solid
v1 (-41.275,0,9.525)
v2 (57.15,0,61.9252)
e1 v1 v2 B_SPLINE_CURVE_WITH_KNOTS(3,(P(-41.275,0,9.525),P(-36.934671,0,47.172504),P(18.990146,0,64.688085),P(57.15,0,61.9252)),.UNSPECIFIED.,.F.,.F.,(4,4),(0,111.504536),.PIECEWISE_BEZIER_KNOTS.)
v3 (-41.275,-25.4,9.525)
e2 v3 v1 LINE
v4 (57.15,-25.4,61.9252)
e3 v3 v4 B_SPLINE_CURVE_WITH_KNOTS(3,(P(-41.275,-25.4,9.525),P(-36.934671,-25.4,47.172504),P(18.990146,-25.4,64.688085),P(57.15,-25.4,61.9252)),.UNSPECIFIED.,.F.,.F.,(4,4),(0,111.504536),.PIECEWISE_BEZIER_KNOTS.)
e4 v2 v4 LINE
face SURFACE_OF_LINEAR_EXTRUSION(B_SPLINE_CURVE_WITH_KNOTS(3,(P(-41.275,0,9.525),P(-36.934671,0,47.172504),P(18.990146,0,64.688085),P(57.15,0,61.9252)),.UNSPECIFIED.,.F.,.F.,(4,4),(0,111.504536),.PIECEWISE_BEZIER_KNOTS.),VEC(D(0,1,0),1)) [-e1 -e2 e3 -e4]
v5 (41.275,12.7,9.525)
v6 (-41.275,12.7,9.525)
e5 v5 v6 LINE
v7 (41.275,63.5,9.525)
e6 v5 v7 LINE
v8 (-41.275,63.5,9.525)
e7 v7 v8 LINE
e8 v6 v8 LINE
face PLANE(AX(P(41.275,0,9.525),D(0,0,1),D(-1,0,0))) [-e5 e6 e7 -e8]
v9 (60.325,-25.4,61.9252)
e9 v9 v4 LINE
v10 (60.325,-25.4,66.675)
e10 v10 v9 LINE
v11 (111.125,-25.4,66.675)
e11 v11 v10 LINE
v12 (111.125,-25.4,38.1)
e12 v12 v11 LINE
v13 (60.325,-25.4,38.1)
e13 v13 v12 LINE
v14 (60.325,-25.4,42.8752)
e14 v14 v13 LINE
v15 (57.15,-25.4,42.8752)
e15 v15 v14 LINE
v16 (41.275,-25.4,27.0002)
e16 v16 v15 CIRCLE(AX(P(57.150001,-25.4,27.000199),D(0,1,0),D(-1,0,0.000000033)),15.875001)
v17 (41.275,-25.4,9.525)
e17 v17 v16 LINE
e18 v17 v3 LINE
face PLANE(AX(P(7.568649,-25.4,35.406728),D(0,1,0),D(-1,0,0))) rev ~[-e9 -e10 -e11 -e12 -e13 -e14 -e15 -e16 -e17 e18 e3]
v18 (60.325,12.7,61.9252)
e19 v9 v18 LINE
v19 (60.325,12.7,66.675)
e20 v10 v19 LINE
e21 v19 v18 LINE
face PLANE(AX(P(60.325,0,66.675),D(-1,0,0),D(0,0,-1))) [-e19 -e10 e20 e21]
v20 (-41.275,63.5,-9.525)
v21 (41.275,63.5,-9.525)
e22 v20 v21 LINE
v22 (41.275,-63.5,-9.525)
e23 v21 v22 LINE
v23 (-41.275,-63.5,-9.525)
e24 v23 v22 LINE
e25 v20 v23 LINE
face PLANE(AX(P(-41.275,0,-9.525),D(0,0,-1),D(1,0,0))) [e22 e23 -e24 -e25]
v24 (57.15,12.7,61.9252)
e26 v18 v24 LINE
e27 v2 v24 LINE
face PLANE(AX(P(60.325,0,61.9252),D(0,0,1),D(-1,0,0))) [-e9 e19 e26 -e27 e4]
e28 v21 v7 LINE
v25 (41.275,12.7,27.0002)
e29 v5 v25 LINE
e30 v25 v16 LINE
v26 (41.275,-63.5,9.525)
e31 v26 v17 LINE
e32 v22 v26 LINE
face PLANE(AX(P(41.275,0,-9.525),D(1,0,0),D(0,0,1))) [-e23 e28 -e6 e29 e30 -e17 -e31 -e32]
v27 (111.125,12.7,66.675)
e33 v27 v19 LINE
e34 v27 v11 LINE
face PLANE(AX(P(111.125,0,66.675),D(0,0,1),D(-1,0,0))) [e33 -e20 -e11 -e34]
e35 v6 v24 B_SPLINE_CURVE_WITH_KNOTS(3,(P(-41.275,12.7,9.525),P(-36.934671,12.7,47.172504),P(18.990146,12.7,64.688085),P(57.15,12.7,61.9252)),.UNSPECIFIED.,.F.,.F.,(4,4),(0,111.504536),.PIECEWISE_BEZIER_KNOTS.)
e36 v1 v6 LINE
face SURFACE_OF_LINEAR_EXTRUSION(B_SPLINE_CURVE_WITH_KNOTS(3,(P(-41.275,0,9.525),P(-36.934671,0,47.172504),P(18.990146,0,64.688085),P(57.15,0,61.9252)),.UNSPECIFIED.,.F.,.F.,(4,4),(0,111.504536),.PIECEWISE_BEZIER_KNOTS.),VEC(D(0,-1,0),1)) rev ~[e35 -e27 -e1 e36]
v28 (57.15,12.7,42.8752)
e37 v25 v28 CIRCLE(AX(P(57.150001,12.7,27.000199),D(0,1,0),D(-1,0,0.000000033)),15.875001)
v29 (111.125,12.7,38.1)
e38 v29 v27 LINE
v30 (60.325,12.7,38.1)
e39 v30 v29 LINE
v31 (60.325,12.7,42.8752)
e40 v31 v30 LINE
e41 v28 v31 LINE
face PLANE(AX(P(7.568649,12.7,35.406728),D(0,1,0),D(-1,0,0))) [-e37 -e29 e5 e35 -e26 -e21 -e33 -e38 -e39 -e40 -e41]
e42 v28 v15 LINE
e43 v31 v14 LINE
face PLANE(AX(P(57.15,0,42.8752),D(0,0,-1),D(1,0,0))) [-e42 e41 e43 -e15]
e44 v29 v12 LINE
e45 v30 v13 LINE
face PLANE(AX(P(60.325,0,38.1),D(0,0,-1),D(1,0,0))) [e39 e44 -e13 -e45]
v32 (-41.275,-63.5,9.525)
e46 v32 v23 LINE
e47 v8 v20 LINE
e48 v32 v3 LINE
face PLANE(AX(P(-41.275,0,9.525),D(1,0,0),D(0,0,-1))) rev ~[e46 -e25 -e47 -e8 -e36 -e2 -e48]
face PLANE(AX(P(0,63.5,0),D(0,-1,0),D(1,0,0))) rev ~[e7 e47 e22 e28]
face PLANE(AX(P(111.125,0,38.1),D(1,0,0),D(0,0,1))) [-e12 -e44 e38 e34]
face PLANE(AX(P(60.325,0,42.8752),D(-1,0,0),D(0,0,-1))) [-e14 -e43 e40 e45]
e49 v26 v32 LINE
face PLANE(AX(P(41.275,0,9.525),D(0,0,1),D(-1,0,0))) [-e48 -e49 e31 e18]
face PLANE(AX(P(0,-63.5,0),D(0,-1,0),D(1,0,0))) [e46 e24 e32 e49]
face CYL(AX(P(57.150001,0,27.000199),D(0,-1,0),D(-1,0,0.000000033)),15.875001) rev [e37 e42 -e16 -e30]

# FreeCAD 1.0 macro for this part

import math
import FreeCAD as App
import Part
import Sketcher
Q = App.Units.Quantity

doc = App.newDocument("Part")
params = doc.addObject("Spreadsheet::Sheet", "Params")
for row, (alias, value) in enumerate([
    ("sketch1_width", "3.25 in"),
    ("sketch1_height", "0.75 in"),
    ("pad1_length", "5 in"),
    ("sketch2_width", "2 in"),
    ("sketch2_radius", "0.625 in"),
    ("sketch2_height", "0.75 in"),
    ("sketch2_height2", "1.438 in"),
    ("sketch2_height3", "1.125 in"),
    ("pad2_length", "1 in"),
    ("sketch3_width", "2 in"),
    ("sketch3_radius", "0.625 in"),
    ("sketch3_height", "0.75 in"),
    ("sketch3_height2", "1.438 in"),
    ("sketch3_height3", "1.125 in"),
    ("pad3_length", "1 in"),
], start=1):
    params.set(f"A{row}", alias)
    params.set(f"B{row}", "=" + value)
    params.setAlias(f"B{row}", alias)

body = doc.addObject("PartDesign::Body", "Body")

sketch1 = body.newObject("Sketcher::SketchObject", "Sketch")
sketch1.AttachmentSupport = (doc.getObject("XZ_Plane"), [""])
sketch1.MapMode = "FlatFace"
sketch1.addGeometry(Part.LineSegment(App.Vector(-41, 10, 0), App.Vector(-41, -10, 0)), False)
sketch1.addGeometry(Part.LineSegment(App.Vector(-41, -10, 0), App.Vector(41, -10, 0)), False)
sketch1.addGeometry(Part.LineSegment(App.Vector(41, -10, 0), App.Vector(41, 10, 0)), False)
sketch1.addGeometry(Part.LineSegment(App.Vector(41, 10, 0), App.Vector(-41, 10, 0)), False)
sketch1.addConstraint(Sketcher.Constraint("Coincident", 0, 2, 1, 1))
sketch1.addConstraint(Sketcher.Constraint("Coincident", 1, 2, 2, 1))
sketch1.addConstraint(Sketcher.Constraint("Coincident", 2, 2, 3, 1))
sketch1.addConstraint(Sketcher.Constraint("Coincident", 3, 2, 0, 1))
sketch1.addConstraint(Sketcher.Constraint("Vertical", 0))
sketch1.addConstraint(Sketcher.Constraint("Horizontal", 1))
sketch1.addConstraint(Sketcher.Constraint("Vertical", 2))
sketch1.addConstraint(Sketcher.Constraint("Horizontal", 3))
sketch1.addConstraint(Sketcher.Constraint("Symmetric", 0, 2, 2, 2, -1, 1))
sketch1.addConstraint(Sketcher.Constraint("DistanceX", 1, 1, 1, 2, Q("3.25 in")))
sketch1.addConstraint(Sketcher.Constraint("DistanceY", 0, 2, 0, 1, Q("0.75 in")))
sketch1.setExpression("Constraints[9]", "Params.sketch1_width")
sketch1.setExpression("Constraints[10]", "Params.sketch1_height")
pad1 = body.newObject("PartDesign::Pad", "Pad")
pad1.Profile = sketch1
pad1.setExpression("Length", "Params.pad1_length")
pad1.Midplane = True

sketch2 = body.newObject("Sketcher::SketchObject", "Sketch001")
sketch2.AttachmentSupport = (doc.getObject("XZ_Plane"), [""])
sketch2.MapMode = "FlatFace"
sketch2.addGeometry(Part.BSplineCurve([App.Vector(-41.275, 9.525, 0), App.Vector(-36.934671, 47.172504, 0), App.Vector(18.990146, 64.688085, 0), App.Vector(57.15, 61.9252, 0)], [4, 4], [0, 111.504536], False, 3, [1, 1, 1, 1], False), False)
sketch2.addGeometry(Part.LineSegment(App.Vector(-41.275, 9.525, 0), App.Vector(-41.275, -9.525, 0)), False)
sketch2.addGeometry(Part.LineSegment(App.Vector(-41.275, -9.525, 0), App.Vector(41.275, -9.525, 0)), False)
sketch2.addGeometry(Part.LineSegment(App.Vector(41.275, -9.525, 0), App.Vector(41.275, 27.0002, 0)), False)
sketch2.addGeometry(Part.ArcOfCircle(Part.Circle(App.Vector(57.150001, 27.000199, 0), App.Vector(0, 0, 1), 15.875001), math.radians(90.000002), math.radians(179.999998)), False)
sketch2.addGeometry(Part.LineSegment(App.Vector(57.15, 42.8752, 0), App.Vector(60.325, 42.8752, 0)), False)
sketch2.addGeometry(Part.LineSegment(App.Vector(60.325, 42.8752, 0), App.Vector(60.325, 38.1, 0)), False)
sketch2.addGeometry(Part.LineSegment(App.Vector(60.325, 38.1, 0), App.Vector(111.125, 38.1, 0)), False)
sketch2.addGeometry(Part.LineSegment(App.Vector(111.125, 38.1, 0), App.Vector(111.125, 66.675, 0)), False)
sketch2.addGeometry(Part.LineSegment(App.Vector(111.125, 66.675, 0), App.Vector(60.325, 66.675, 0)), False)
sketch2.addGeometry(Part.LineSegment(App.Vector(60.325, 66.675, 0), App.Vector(60.325, 61.9252, 0)), False)
sketch2.addGeometry(Part.LineSegment(App.Vector(60.325, 61.9252, 0), App.Vector(57.15, 61.9252, 0)), False)
sketch2.addConstraint(Sketcher.Constraint("Block", 0))
sketch2.addConstraint(Sketcher.Constraint("Coincident", 0, 1, 1, 1))
sketch2.addConstraint(Sketcher.Constraint("Coincident", 1, 2, 2, 1))
sketch2.addConstraint(Sketcher.Constraint("Coincident", 2, 2, 3, 1))
sketch2.addConstraint(Sketcher.Constraint("Tangent", 3, 2, 4, 2))
sketch2.addConstraint(Sketcher.Constraint("Tangent", 4, 1, 5, 1))
sketch2.addConstraint(Sketcher.Constraint("Coincident", 5, 2, 6, 1))
sketch2.addConstraint(Sketcher.Constraint("Coincident", 6, 2, 7, 1))
sketch2.addConstraint(Sketcher.Constraint("Coincident", 7, 2, 8, 1))
sketch2.addConstraint(Sketcher.Constraint("Coincident", 8, 2, 9, 1))
sketch2.addConstraint(Sketcher.Constraint("Coincident", 9, 2, 10, 1))
sketch2.addConstraint(Sketcher.Constraint("Coincident", 10, 2, 11, 1))
sketch2.addConstraint(Sketcher.Constraint("Coincident", 11, 2, 0, 2))
sketch2.addConstraint(Sketcher.Constraint("Vertical", 1))
sketch2.addConstraint(Sketcher.Constraint("Horizontal", 2))
sketch2.addConstraint(Sketcher.Constraint("Vertical", 3))
sketch2.addConstraint(Sketcher.Constraint("Horizontal", 5))
sketch2.addConstraint(Sketcher.Constraint("Vertical", 6))
sketch2.addConstraint(Sketcher.Constraint("Horizontal", 7))
sketch2.addConstraint(Sketcher.Constraint("Vertical", 8))
sketch2.addConstraint(Sketcher.Constraint("Horizontal", 9))
sketch2.addConstraint(Sketcher.Constraint("Vertical", 10))
sketch2.addConstraint(Sketcher.Constraint("Horizontal", 11))
sketch2.addConstraint(Sketcher.Constraint("Vertical", 6, 2, 9, 2))
sketch2.addConstraint(Sketcher.Constraint("Vertical", 4, 1, 11, 2))
sketch2.addConstraint(Sketcher.Constraint("DistanceX", 7, 1, 7, 2, Q("2 in")))
sketch2.addConstraint(Sketcher.Constraint("Radius", 4, Q("0.625 in")))
sketch2.addConstraint(Sketcher.Constraint("DistanceX", 1, 2, 5, 2, Q("4 in")))
sketch2.addConstraint(Sketcher.Constraint("DistanceY", 1, 2, 1, 1, Q("0.75 in")))
sketch2.addConstraint(Sketcher.Constraint("DistanceY", -1, 1, 6, 2, Q("1.5 in")))
sketch2.addConstraint(Sketcher.Constraint("DistanceY", 3, 1, 3, 2, Q("1.438 in")))
sketch2.addConstraint(Sketcher.Constraint("DistanceY", 8, 1, 8, 2, Q("1.125 in")))
sketch2.setExpression("Constraints[25]", "Params.sketch2_width")
sketch2.setExpression("Constraints[26]", "Params.sketch2_radius")
sketch2.setExpression("Constraints[28]", "Params.sketch2_height")
sketch2.setExpression("Constraints[30]", "Params.sketch2_height2")
sketch2.setExpression("Constraints[31]", "Params.sketch2_height3")
pad2 = body.newObject("PartDesign::Pad", "Pad001")
pad2.Profile = sketch2
pad2.setExpression("Length", "Params.pad2_length")

sketch3 = body.newObject("Sketcher::SketchObject", "Sketch002")
sketch3.AttachmentSupport = (doc.getObject("XZ_Plane"), [""])
sketch3.MapMode = "FlatFace"
sketch3.addGeometry(Part.BSplineCurve([App.Vector(-41.275, 9.525, 0), App.Vector(-36.934671, 47.172504, 0), App.Vector(18.990146, 64.688085, 0), App.Vector(57.15, 61.9252, 0)], [4, 4], [0, 111.504536], False, 3, [1, 1, 1, 1], False), False)
sketch3.addGeometry(Part.LineSegment(App.Vector(-41.275, 9.525, 0), App.Vector(-41.275, -9.525, 0)), False)
sketch3.addGeometry(Part.LineSegment(App.Vector(-41.275, -9.525, 0), App.Vector(41.275, -9.525, 0)), False)
sketch3.addGeometry(Part.LineSegment(App.Vector(41.275, -9.525, 0), App.Vector(41.275, 27.0002, 0)), False)
sketch3.addGeometry(Part.ArcOfCircle(Part.Circle(App.Vector(57.150001, 27.000199, 0), App.Vector(0, 0, 1), 15.875001), math.radians(90.000002), math.radians(179.999998)), False)
sketch3.addGeometry(Part.LineSegment(App.Vector(57.15, 42.8752, 0), App.Vector(60.325, 42.8752, 0)), False)
sketch3.addGeometry(Part.LineSegment(App.Vector(60.325, 42.8752, 0), App.Vector(60.325, 38.1, 0)), False)
sketch3.addGeometry(Part.LineSegment(App.Vector(60.325, 38.1, 0), App.Vector(111.125, 38.1, 0)), False)
sketch3.addGeometry(Part.LineSegment(App.Vector(111.125, 38.1, 0), App.Vector(111.125, 66.675, 0)), False)
sketch3.addGeometry(Part.LineSegment(App.Vector(111.125, 66.675, 0), App.Vector(60.325, 66.675, 0)), False)
sketch3.addGeometry(Part.LineSegment(App.Vector(60.325, 66.675, 0), App.Vector(60.325, 61.9252, 0)), False)
sketch3.addGeometry(Part.LineSegment(App.Vector(60.325, 61.9252, 0), App.Vector(57.15, 61.9252, 0)), False)
sketch3.addConstraint(Sketcher.Constraint("Block", 0))
sketch3.addConstraint(Sketcher.Constraint("Coincident", 0, 1, 1, 1))
sketch3.addConstraint(Sketcher.Constraint("Coincident", 1, 2, 2, 1))
sketch3.addConstraint(Sketcher.Constraint("Coincident", 2, 2, 3, 1))
sketch3.addConstraint(Sketcher.Constraint("Tangent", 3, 2, 4, 2))
sketch3.addConstraint(Sketcher.Constraint("Tangent", 4, 1, 5, 1))
sketch3.addConstraint(Sketcher.Constraint("Coincident", 5, 2, 6, 1))
sketch3.addConstraint(Sketcher.Constraint("Coincident", 6, 2, 7, 1))
sketch3.addConstraint(Sketcher.Constraint("Coincident", 7, 2, 8, 1))
sketch3.addConstraint(Sketcher.Constraint("Coincident", 8, 2, 9, 1))
sketch3.addConstraint(Sketcher.Constraint("Coincident", 9, 2, 10, 1))
sketch3.addConstraint(Sketcher.Constraint("Coincident", 10, 2, 11, 1))
sketch3.addConstraint(Sketcher.Constraint("Coincident", 11, 2, 0, 2))
sketch3.addConstraint(Sketcher.Constraint("Vertical", 1))
sketch3.addConstraint(Sketcher.Constraint("Horizontal", 2))
sketch3.addConstraint(Sketcher.Constraint("Vertical", 3))
sketch3.addConstraint(Sketcher.Constraint("Horizontal", 5))
sketch3.addConstraint(Sketcher.Constraint("Vertical", 6))
sketch3.addConstraint(Sketcher.Constraint("Horizontal", 7))
sketch3.addConstraint(Sketcher.Constraint("Vertical", 8))
sketch3.addConstraint(Sketcher.Constraint("Horizontal", 9))
sketch3.addConstraint(Sketcher.Constraint("Vertical", 10))
sketch3.addConstraint(Sketcher.Constraint("Horizontal", 11))
sketch3.addConstraint(Sketcher.Constraint("Vertical", 6, 2, 9, 2))
sketch3.addConstraint(Sketcher.Constraint("Vertical", 4, 1, 11, 2))
sketch3.addConstraint(Sketcher.Constraint("DistanceX", 7, 1, 7, 2, Q("2 in")))
sketch3.addConstraint(Sketcher.Constraint("Radius", 4, Q("0.625 in")))
sketch3.addConstraint(Sketcher.Constraint("DistanceX", 1, 2, 5, 2, Q("4 in")))
sketch3.addConstraint(Sketcher.Constraint("DistanceY", 1, 2, 1, 1, Q("0.75 in")))
sketch3.addConstraint(Sketcher.Constraint("DistanceY", -1, 1, 6, 2, Q("1.5 in")))
sketch3.addConstraint(Sketcher.Constraint("DistanceY", 3, 1, 3, 2, Q("1.438 in")))
sketch3.addConstraint(Sketcher.Constraint("DistanceY", 8, 1, 8, 2, Q("1.125 in")))
sketch3.setExpression("Constraints[25]", "Params.sketch3_width")
sketch3.setExpression("Constraints[26]", "Params.sketch3_radius")
sketch3.setExpression("Constraints[28]", "Params.sketch3_height")
sketch3.setExpression("Constraints[30]", "Params.sketch3_height2")
sketch3.setExpression("Constraints[31]", "Params.sketch3_height3")
pad3 = body.newObject("PartDesign::Pad", "Pad002")
pad3.Profile = sketch3
pad3.setExpression("Length", "Params.pad3_length")
pad3.Midplane = True

doc.recompute()
